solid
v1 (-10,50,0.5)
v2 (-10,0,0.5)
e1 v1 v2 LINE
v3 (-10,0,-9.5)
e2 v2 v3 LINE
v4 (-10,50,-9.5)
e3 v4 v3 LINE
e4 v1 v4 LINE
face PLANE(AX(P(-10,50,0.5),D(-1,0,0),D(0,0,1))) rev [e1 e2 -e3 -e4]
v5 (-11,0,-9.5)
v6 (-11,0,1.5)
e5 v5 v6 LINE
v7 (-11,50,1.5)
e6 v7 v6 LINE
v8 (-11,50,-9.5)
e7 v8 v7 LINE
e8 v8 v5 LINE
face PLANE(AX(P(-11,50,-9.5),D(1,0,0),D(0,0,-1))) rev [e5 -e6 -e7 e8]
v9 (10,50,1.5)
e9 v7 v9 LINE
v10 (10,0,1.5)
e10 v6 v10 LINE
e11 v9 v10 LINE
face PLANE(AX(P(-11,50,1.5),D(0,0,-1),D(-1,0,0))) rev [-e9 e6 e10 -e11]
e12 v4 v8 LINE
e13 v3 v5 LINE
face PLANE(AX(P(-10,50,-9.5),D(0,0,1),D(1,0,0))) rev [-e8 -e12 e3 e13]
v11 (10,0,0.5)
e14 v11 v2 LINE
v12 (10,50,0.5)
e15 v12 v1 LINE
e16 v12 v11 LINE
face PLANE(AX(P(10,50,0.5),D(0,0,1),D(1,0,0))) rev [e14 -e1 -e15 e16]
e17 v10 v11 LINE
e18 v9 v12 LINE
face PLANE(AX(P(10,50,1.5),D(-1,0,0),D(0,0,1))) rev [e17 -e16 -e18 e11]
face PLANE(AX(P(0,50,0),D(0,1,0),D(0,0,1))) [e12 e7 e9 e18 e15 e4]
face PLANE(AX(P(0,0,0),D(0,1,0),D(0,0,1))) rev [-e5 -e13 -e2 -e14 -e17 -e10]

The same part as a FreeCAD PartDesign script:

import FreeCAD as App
import Part
import Sketcher

V = App.Vector
Q = App.Units.Quantity

doc = App.newDocument("Part")
body = doc.addObject("PartDesign::Body", "Body")

sketch1 = body.newObject("Sketcher::SketchObject", "Sketch")
sketch1.AttachmentSupport = (doc.getObject("XZ_Plane"), [""])
sketch1.MapMode = "FlatFace"
sketch1.addGeometry([
    Part.LineSegment(V(-11, -9.5, 0), V(-11, 1.5, 0)),
    Part.LineSegment(V(-11, 1.5, 0), V(10, 1.5, 0)),
    Part.LineSegment(V(10, 1.5, 0), V(10, 0.5, 0)),
    Part.LineSegment(V(10, 0.5, 0), V(-10, 0.5, 0)),
    Part.LineSegment(V(-10, 0.5, 0), V(-10, -9.5, 0)),
    Part.LineSegment(V(-10, -9.5, 0), V(-11, -9.5, 0)),
], False)
sketch1.addConstraint([
    Sketcher.Constraint("Coincident", 0, 2, 1, 1),
    Sketcher.Constraint("Coincident", 1, 2, 2, 1),
    Sketcher.Constraint("Coincident", 2, 2, 3, 1),
    Sketcher.Constraint("Coincident", 3, 2, 4, 1),
    Sketcher.Constraint("Coincident", 4, 2, 5, 1),
    Sketcher.Constraint("Coincident", 5, 2, 0, 1),
    Sketcher.Constraint("Vertical", 0),
    Sketcher.Constraint("Horizontal", 1),
    Sketcher.Constraint("Vertical", 2),
    Sketcher.Constraint("Horizontal", 3),
    Sketcher.Constraint("Vertical", 4),
    Sketcher.Constraint("Horizontal", 5),
    Sketcher.Constraint("Equal", 5, 2),
    Sketcher.Constraint("DistanceX", 1, 1, 1, 2, Q("21 mm")),
    Sketcher.Constraint("DistanceX", 3, 2, 3, 1, Q("20 mm")),
    Sketcher.Constraint("DistanceY", 0, 1, 0, 2, Q("11 mm")),
    Sketcher.Constraint("DistanceX", 0, 2, -1, 1, Q("11 mm")),
    Sketcher.Constraint("DistanceY", -1, 1, 0, 2, Q("1.5 mm")),
])
pad1 = body.newObject("PartDesign::Pad", "Pad")
pad1.Profile = sketch1
pad1.Length = 50
pad1.Reversed = True

doc.recompute()
